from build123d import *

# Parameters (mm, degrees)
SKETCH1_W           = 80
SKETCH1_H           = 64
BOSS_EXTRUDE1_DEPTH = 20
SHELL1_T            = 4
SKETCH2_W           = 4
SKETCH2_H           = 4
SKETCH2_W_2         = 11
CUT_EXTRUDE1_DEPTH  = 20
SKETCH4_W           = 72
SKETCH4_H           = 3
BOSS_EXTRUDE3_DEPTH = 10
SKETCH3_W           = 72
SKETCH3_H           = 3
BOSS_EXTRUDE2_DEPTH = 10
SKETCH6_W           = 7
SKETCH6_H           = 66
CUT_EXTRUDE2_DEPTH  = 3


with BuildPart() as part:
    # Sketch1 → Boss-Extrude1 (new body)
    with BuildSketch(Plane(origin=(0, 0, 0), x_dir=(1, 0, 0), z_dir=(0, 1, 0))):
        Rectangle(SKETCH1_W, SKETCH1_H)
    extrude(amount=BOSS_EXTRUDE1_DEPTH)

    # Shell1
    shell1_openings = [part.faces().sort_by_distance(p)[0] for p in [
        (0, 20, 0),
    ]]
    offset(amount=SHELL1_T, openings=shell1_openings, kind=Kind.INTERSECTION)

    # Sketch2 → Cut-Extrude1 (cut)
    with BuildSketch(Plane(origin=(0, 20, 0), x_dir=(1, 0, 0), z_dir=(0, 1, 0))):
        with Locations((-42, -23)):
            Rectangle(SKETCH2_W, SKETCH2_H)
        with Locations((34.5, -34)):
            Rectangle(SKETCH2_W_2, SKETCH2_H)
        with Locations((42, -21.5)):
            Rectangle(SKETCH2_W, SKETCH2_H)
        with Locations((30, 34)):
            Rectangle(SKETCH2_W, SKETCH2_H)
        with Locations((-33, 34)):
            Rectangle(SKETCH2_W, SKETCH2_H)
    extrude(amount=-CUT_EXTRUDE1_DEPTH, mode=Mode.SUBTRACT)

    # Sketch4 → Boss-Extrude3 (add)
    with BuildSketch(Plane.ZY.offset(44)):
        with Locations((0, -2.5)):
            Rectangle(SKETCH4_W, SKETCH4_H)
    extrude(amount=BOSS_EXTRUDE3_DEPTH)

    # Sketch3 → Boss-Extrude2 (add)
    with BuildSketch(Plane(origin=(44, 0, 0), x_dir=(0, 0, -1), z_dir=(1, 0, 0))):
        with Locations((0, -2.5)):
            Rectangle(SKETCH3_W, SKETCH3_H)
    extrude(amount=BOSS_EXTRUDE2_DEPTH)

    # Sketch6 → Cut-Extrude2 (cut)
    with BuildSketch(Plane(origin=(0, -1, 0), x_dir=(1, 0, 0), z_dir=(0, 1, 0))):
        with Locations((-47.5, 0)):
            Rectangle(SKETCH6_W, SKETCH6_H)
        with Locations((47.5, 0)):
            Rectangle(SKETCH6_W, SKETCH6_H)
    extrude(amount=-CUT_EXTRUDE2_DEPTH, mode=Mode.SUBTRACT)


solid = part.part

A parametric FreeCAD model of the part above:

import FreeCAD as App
import Part
import Sketcher

V = App.Vector


def faces_at(feature, points):
    """Names of the faces that lie closest to the given points."""
    faces = feature.Shape.Faces
    near = lambda p: min(range(len(faces)), key=lambda i: faces[i].distToShape(Part.Vertex(*p))[0])
    return sorted({f"Face{near(p) + 1}" for p in points})


def add_polygon(sketch, points):
    """Adds a closed chain of lines whose ends are joined by coincident constraints."""
    first, n = sketch.GeometryCount, len(points)
    for a, b in zip(points, points[1:] + points[:1]):
        sketch.addGeometry(Part.LineSegment(App.Vector(*a, 0), App.Vector(*b, 0)), False)
    for i in range(n):
        sketch.addConstraint(Sketcher.Constraint("Coincident", first + i, 2, first + (i + 1) % n, 1))

doc = App.newDocument("Part")
params = doc.addObject("Spreadsheet::Sheet", "Params")
for row, (alias, value) in enumerate([
    ("sketch1_width", "80 mm"),
    ("sketch1_height", "64 mm"),
    ("pad1_length", "20 mm"),
    ("thickness_wall", "4 mm"),
    ("sketch2_width", "4 mm"),
    ("sketch2_width2", "11 mm"),
    ("pocket1_length", "20 mm"),
    ("sketch3_width", "3 mm"),
    ("sketch3_height", "72 mm"),
    ("pad2_length", "10 mm"),
    ("sketch4_width", "3 mm"),
    ("sketch4_height", "72 mm"),
    ("pad3_length", "10 mm"),
    ("sketch5_width", "7 mm"),
    ("sketch5_height", "66 mm"),
    ("pocket2_length", "3 mm"),
], start=1):
    params.set(f"A{row}", alias)
    params.set(f"B{row}", "=" + value)
    params.setAlias(f"B{row}", alias)

body = doc.addObject("PartDesign::Body", "Body")

sketch1 = doc.addObject("Sketcher::SketchObject", "Sketch")
body.addObject(sketch1)
sketch1.AttachmentSupport = (doc.XZ_Plane, [""])
sketch1.MapMode = "FlatFace"
add_polygon(sketch1, [(-40, -32), (-40, 32), (40, 32), (40, -32)])
sketch1.addConstraint([
    Sketcher.Constraint("Vertical", 0),
    Sketcher.Constraint("Horizontal", 1),
    Sketcher.Constraint("Vertical", 2),
    Sketcher.Constraint("Horizontal", 3),
    Sketcher.Constraint("Symmetric", 0, 2, 2, 2, -1, 1),
    Sketcher.Constraint("DistanceX", 1, 1, 1, 2, 80.0),
    Sketcher.Constraint("DistanceY", 0, 1, 0, 2, 64.0),
])
sketch1.setExpression("Constraints[9]", "Params.sketch1_width")
sketch1.setExpression("Constraints[10]", "Params.sketch1_height")
pad1 = doc.addObject("PartDesign::Pad", "Pad")
body.addObject(pad1)
pad1.Profile = sketch1
pad1.setExpression("Length", "Params.pad1_length")
pad1.Reversed = True
doc.recompute()

thickness = doc.addObject("PartDesign::Thickness", "Thickness")
body.addObject(thickness)
thickness.Base = (pad1, faces_at(pad1, [(0, 20, 0)]))
thickness.setExpression("Value", "Params.thickness_wall")
thickness.Reversed = False
thickness.Join = "Intersection"

sketch2 = doc.addObject("Sketcher::SketchObject", "Sketch001")
body.addObject(sketch2)
sketch2.AttachmentSupport = (doc.XZ_Plane, [""])
sketch2.MapMode = "FlatFace"
sketch2.AttachmentOffset = App.Placement(V(0, 0, -20), App.Rotation())
add_polygon(sketch2, [(-44, 21), (-44, 25), (-40, 25), (-40, 21)])
add_polygon(sketch2, [(29, 32), (29, 36), (40, 36), (40, 32)])
add_polygon(sketch2, [(40, 19.5), (40, 23.5), (44, 23.5), (44, 19.5)])
add_polygon(sketch2, [(28, -36), (28, -32), (32, -32), (32, -36)])
add_polygon(sketch2, [(-35, -36), (-35, -32), (-31, -32), (-31, -36)])
sketch2.addConstraint([
    Sketcher.Constraint("Vertical", 0),
    Sketcher.Constraint("Horizontal", 1),
    Sketcher.Constraint("Vertical", 2),
    Sketcher.Constraint("Horizontal", 3),
    Sketcher.Constraint("Vertical", 4),
    Sketcher.Constraint("Horizontal", 5),
    Sketcher.Constraint("Vertical", 6),
    Sketcher.Constraint("Horizontal", 7),
    Sketcher.Constraint("Vertical", 8),
    Sketcher.Constraint("Horizontal", 9),
    Sketcher.Constraint("Vertical", 10),
    Sketcher.Constraint("Horizontal", 11),
    Sketcher.Constraint("Vertical", 12),
    Sketcher.Constraint("Horizontal", 13),
    Sketcher.Constraint("Vertical", 14),
    Sketcher.Constraint("Horizontal", 15),
    Sketcher.Constraint("Vertical", 16),
    Sketcher.Constraint("Horizontal", 17),
    Sketcher.Constraint("Vertical", 18),
    Sketcher.Constraint("Horizontal", 19),
    Sketcher.Constraint("Horizontal", 13, 2, 16, 2),
    Sketcher.Constraint("Horizontal", 15, 2, 18, 2),
    Sketcher.Constraint("Vertical", 6, 2, 8, 2),
    Sketcher.Constraint("Equal", 3, 9),
    Sketcher.Constraint("Equal", 11, 13),
    Sketcher.Constraint("Equal", 15, 17),
    Sketcher.Constraint("Equal", 19, 0),
    Sketcher.Constraint("Equal", 2, 4),
    Sketcher.Constraint("Equal", 6, 8),
    Sketcher.Constraint("Equal", 10, 12),
    Sketcher.Constraint("DistanceX", 1, 1, 1, 2, 4.0),
    Sketcher.Constraint("DistanceX", 5, 1, 5, 2, 11.0),
    Sketcher.Constraint("DistanceX", 0, 2, -1, 1, 44.0),
    Sketcher.Constraint("DistanceY", -1, 1, 0, 2, 25.0),
    Sketcher.Constraint("DistanceX", -1, 1, 4, 2, 29.0),
    Sketcher.Constraint("DistanceY", -1, 1, 4, 2, 36.0),
    Sketcher.Constraint("DistanceX", -1, 1, 12, 2, 28.0),
    Sketcher.Constraint("DistanceY", 12, 2, -1, 1, 32.0),
    Sketcher.Constraint("DistanceX", 16, 2, -1, 1, 35.0),
    Sketcher.Constraint("DistanceY", -1, 1, 8, 2, 23.5),
])
sketch2.setExpression("Constraints[50]", "Params.sketch2_width")
sketch2.setExpression("Constraints[51]", "Params.sketch2_width2")
pocket1 = doc.addObject("PartDesign::Pocket", "Pocket")
body.addObject(pocket1)
pocket1.Profile = sketch2
pocket1.setExpression("Length", "Params.pocket1_length")
pocket1.Reversed = True

sketch3 = doc.addObject("Sketcher::SketchObject", "Sketch002")
body.addObject(sketch3)
sketch3.AttachmentSupport = (doc.YZ_Plane, [""])
sketch3.MapMode = "FlatFace"
sketch3.AttachmentOffset = App.Placement(V(0, 0, -44), App.Rotation())
add_polygon(sketch3, [(-1, -36), (-4, -36), (-4, 36), (-1, 36)])
sketch3.addConstraint([
    Sketcher.Constraint("Horizontal", 0),
    Sketcher.Constraint("Vertical", 1),
    Sketcher.Constraint("Horizontal", 2),
    Sketcher.Constraint("Vertical", 3),
    Sketcher.Constraint("DistanceX", 0, 2, 0, 1, 3.0),
    Sketcher.Constraint("DistanceY", 1, 1, 1, 2, 72.0),
    Sketcher.Constraint("DistanceX", 0, 2, -1, 1, 4.0),
    Sketcher.Constraint("DistanceY", 0, 2, -1, 1, 36.0),
])
sketch3.setExpression("Constraints[8]", "Params.sketch3_width")
sketch3.setExpression("Constraints[9]", "Params.sketch3_height")
pad2 = doc.addObject("PartDesign::Pad", "Pad001")
body.addObject(pad2)
pad2.Profile = sketch3
pad2.setExpression("Length", "Params.pad2_length")
pad2.Reversed = True

sketch4 = doc.addObject("Sketcher::SketchObject", "Sketch003")
body.addObject(sketch4)
sketch4.AttachmentSupport = (doc.YZ_Plane, [""])
sketch4.MapMode = "FlatFace"
sketch4.AttachmentOffset = App.Placement(V(0, 0, 44), App.Rotation())
add_polygon(sketch4, [(-1, 36), (-4, 36), (-4, -36), (-1, -36)])
sketch4.addConstraint([
    Sketcher.Constraint("Horizontal", 0),
    Sketcher.Constraint("Vertical", 1),
    Sketcher.Constraint("Horizontal", 2),
    Sketcher.Constraint("Vertical", 3),
    Sketcher.Constraint("DistanceX", 0, 2, 0, 1, 3.0),
    Sketcher.Constraint("DistanceY", 1, 2, 1, 1, 72.0),
    Sketcher.Constraint("DistanceX", 0, 2, -1, 1, 4.0),
    Sketcher.Constraint("DistanceY", -1, 1, 0, 2, 36.0),
])
sketch4.setExpression("Constraints[8]", "Params.sketch4_width")
sketch4.setExpression("Constraints[9]", "Params.sketch4_height")
pad3 = doc.addObject("PartDesign::Pad", "Pad002")
body.addObject(pad3)
pad3.Profile = sketch4
pad3.setExpression("Length", "Params.pad3_length")

sketch5 = doc.addObject("Sketcher::SketchObject", "Sketch004")
body.addObject(sketch5)
sketch5.AttachmentSupport = (doc.XZ_Plane, [""])
sketch5.MapMode = "FlatFace"
sketch5.AttachmentOffset = App.Placement(V(0, 0, 1), App.Rotation())
add_polygon(sketch5, [(-51, -33), (-51, 33), (-44, 33), (-44, -33)])
add_polygon(sketch5, [(44, -33), (44, 33), (51, 33), (51, -33)])
sketch5.addConstraint([
    Sketcher.Constraint("Vertical", 0),
    Sketcher.Constraint("Horizontal", 1),
    Sketcher.Constraint("Vertical", 2),
    Sketcher.Constraint("Horizontal", 3),
    Sketcher.Constraint("Vertical", 4),
    Sketcher.Constraint("Horizontal", 5),
    Sketcher.Constraint("Vertical", 6),
    Sketcher.Constraint("Horizontal", 7),
    Sketcher.Constraint("Symmetric", 2, 2, 4, 2, -1, 1),
    Sketcher.Constraint("Symmetric", 0, 2, 6, 2, -1, 1),
    Sketcher.Constraint("Horizontal", 1, 2, 4, 2),
    Sketcher.Constraint("DistanceX", 1, 1, 1, 2, 7.0),
    Sketcher.Constraint("DistanceY", 0, 1, 0, 2, 66.0),
    Sketcher.Constraint("DistanceX", 0, 2, -1, 1, 51.0),
])
sketch5.setExpression("Constraints[19]", "Params.sketch5_width")
sketch5.setExpression("Constraints[20]", "Params.sketch5_height")
pocket2 = doc.addObject("PartDesign::Pocket", "Pocket001")
body.addObject(pocket2)
pocket2.Profile = sketch5
pocket2.setExpression("Length", "Params.pocket2_length")
pocket2.Reversed = True

doc.recompute()
